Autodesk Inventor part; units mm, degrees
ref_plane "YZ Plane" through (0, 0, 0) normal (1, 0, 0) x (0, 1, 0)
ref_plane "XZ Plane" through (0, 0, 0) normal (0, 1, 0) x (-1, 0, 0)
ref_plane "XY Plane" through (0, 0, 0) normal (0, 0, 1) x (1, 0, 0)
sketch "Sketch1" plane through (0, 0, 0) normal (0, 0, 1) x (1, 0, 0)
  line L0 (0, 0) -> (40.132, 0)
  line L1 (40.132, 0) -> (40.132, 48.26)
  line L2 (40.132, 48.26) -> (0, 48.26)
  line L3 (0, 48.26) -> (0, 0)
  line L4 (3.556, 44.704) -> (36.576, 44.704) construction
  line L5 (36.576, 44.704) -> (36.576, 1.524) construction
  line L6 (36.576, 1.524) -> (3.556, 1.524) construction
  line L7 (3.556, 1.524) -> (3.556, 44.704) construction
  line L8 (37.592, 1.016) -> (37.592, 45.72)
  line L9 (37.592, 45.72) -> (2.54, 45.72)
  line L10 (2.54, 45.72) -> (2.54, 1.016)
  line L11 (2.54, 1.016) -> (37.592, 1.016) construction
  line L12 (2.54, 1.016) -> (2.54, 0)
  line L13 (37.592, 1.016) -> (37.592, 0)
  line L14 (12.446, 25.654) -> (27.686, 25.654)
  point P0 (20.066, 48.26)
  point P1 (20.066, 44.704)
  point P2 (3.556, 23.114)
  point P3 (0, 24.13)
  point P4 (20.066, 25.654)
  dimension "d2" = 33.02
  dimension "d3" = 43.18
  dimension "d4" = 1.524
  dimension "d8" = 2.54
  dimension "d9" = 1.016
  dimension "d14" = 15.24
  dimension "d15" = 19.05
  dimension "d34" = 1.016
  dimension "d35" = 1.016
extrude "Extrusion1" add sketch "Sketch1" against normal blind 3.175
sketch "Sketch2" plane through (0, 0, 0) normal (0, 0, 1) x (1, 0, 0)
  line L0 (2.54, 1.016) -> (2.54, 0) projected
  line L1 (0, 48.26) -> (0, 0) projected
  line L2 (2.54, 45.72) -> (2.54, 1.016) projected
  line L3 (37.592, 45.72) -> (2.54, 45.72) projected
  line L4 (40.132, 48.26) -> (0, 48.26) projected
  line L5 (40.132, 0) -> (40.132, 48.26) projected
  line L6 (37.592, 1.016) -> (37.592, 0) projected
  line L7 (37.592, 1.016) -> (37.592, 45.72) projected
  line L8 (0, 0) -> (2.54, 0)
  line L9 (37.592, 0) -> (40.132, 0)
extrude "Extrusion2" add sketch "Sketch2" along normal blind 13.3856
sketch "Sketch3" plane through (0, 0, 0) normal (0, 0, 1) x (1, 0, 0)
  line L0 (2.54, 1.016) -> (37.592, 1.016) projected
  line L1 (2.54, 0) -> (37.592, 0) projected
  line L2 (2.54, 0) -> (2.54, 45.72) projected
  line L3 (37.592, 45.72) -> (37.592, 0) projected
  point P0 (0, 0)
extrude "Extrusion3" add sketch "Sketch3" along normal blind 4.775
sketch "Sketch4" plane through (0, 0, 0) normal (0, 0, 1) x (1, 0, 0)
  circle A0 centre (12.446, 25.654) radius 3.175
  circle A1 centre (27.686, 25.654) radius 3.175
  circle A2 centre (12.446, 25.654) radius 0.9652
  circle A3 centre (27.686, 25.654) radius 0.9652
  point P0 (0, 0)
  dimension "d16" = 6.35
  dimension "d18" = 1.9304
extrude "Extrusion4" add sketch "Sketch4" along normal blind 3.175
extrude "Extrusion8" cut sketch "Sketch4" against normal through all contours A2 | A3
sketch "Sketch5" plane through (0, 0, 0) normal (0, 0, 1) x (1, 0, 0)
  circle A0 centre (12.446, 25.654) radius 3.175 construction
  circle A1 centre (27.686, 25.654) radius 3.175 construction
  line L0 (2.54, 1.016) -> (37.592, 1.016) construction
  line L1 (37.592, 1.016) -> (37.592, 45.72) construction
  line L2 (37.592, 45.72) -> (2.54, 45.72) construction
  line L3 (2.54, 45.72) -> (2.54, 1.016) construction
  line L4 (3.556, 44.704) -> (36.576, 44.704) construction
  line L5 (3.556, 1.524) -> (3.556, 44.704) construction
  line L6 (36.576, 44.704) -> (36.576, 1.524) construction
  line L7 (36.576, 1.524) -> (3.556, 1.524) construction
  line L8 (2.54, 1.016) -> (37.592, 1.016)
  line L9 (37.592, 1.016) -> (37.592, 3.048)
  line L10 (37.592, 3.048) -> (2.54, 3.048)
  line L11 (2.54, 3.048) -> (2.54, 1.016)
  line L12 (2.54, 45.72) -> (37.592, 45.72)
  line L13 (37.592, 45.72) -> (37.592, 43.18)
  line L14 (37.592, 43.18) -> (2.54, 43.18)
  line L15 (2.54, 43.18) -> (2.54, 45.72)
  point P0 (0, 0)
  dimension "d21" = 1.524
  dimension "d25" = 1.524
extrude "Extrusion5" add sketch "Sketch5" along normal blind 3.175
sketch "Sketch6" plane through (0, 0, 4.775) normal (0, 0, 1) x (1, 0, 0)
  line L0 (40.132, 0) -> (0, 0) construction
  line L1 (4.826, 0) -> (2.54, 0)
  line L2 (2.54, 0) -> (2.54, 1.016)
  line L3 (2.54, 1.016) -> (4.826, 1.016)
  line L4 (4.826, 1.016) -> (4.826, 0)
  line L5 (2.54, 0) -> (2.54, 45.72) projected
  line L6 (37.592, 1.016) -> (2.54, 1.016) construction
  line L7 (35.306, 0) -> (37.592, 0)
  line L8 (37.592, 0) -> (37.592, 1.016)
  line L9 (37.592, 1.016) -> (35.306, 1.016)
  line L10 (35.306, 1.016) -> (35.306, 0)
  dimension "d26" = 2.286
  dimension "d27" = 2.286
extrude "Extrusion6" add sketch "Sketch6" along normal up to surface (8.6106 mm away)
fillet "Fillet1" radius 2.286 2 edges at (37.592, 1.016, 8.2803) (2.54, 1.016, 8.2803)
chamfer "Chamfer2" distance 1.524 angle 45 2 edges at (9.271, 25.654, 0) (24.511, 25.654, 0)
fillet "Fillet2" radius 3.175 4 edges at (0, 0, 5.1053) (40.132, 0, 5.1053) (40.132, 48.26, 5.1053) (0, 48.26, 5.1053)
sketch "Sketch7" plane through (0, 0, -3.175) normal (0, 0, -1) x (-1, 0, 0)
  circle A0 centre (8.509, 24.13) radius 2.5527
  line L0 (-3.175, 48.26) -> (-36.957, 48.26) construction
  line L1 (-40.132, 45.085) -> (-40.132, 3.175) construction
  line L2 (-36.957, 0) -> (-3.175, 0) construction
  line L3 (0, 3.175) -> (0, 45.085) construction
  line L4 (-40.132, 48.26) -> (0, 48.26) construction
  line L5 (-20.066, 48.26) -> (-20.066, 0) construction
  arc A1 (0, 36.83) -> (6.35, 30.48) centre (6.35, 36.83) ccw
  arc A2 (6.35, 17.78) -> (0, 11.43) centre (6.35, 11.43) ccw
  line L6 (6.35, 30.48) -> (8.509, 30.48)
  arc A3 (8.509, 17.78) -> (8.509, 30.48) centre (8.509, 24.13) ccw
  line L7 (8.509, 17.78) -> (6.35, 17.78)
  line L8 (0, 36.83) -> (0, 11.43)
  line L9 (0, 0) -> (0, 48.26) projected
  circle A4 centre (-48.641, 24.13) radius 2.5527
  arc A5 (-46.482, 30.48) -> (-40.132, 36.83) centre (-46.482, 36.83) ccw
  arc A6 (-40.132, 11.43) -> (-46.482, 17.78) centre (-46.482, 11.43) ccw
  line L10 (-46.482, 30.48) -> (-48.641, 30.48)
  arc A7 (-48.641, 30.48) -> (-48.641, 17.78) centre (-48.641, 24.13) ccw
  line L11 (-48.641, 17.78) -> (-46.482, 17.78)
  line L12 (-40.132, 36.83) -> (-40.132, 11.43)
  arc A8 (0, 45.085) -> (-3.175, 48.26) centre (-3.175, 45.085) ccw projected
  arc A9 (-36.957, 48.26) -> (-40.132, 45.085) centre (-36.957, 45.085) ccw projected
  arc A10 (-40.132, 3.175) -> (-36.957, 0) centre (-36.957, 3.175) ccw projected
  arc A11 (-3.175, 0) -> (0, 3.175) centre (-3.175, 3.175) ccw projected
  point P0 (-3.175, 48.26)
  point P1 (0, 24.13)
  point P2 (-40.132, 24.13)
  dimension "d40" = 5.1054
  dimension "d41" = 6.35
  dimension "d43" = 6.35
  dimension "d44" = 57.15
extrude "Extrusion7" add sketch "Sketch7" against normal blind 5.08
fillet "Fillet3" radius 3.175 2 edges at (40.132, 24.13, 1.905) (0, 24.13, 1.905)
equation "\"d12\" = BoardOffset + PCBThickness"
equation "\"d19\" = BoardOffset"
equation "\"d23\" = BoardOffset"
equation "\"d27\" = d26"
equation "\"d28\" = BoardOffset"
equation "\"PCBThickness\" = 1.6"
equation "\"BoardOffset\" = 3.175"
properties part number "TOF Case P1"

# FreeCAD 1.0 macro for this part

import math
import FreeCAD as App
import Part
import Sketcher
from FreeCAD import Vector
Q = App.Units.Quantity


def edges_at(feature, points):
    """Names of the edges that pass closest to the given points."""
    edges = feature.Shape.Edges
    near = lambda p: min(range(len(edges)), key=lambda i: edges[i].distToShape(Part.Vertex(*p))[0])
    return sorted({f"Edge{near(p) + 1}" for p in points})


def add_polygon(sketch, points):
    """Adds a closed chain of lines whose ends are joined by coincident constraints."""
    first, n = sketch.GeometryCount, len(points)
    for a, b in zip(points, points[1:] + points[:1]):
        sketch.addGeometry(Part.LineSegment(App.Vector(*a, 0), App.Vector(*b, 0)), False)
    for i in range(n):
        sketch.addConstraint(Sketcher.Constraint("Coincident", first + i, 2, first + (i + 1) % n, 1))

doc = App.newDocument("Part")
body = doc.addObject("PartDesign::Body", "Body")

# Sketch on XY plane
sketch1 = body.newObject("Sketcher::SketchObject", "Sketch")
sketch1.AttachmentSupport = (doc.getObject("XY_Plane"), [""])
sketch1.MapMode = "FlatFace"
add_polygon(sketch1, [(0, 48), (0, 0), (40, 0), (40, 48)])  # lines 0-3
sketch1.addConstraint(Sketcher.Constraint("Vertical", 0))
sketch1.addConstraint(Sketcher.Constraint("Horizontal", 1))
sketch1.addConstraint(Sketcher.Constraint("Vertical", 2))
sketch1.addConstraint(Sketcher.Constraint("Horizontal", 3))
sketch1.addConstraint(Sketcher.Constraint("Coincident", 0, 2, -1, 1))
sketch1.addConstraint(Sketcher.Constraint("DistanceY", 0, 2, 0, 1, Q("1.9 in")))
sketch1.addConstraint(Sketcher.Constraint("DistanceX", 1, 1, 1, 2, Q("1.58 in")))
pad1 = body.newObject("PartDesign::Pad", "Pad")
pad1.Profile = sketch1
pad1.Length = Q("0.125 in")
pad1.Reversed = True

# Sketch on XY plane
sketch2 = body.newObject("Sketcher::SketchObject", "Sketch001")
sketch2.AttachmentSupport = (doc.getObject("XY_Plane"), [""])
sketch2.MapMode = "FlatFace"
add_polygon(sketch2, [(2.5, 0), (2.5, 45.7), (37.6, 45.7), (37.6, 0), (40.1, 0), (40.1, 48.3), (0, 48.3), (0, 0)])  # lines 0-7
sketch2.addConstraint(Sketcher.Constraint("Vertical", 0))
sketch2.addConstraint(Sketcher.Constraint("Horizontal", 1))
sketch2.addConstraint(Sketcher.Constraint("Vertical", 2))
sketch2.addConstraint(Sketcher.Constraint("Horizontal", 3))
sketch2.addConstraint(Sketcher.Constraint("Vertical", 4))
sketch2.addConstraint(Sketcher.Constraint("Horizontal", 5))
sketch2.addConstraint(Sketcher.Constraint("Vertical", 6))
sketch2.addConstraint(Sketcher.Constraint("Horizontal", 7))
sketch2.addConstraint(Sketcher.Constraint("Coincident", 6, 2, -1, 1))
sketch2.addConstraint(Sketcher.Constraint("PointOnObject", 2, 2, -1))
sketch2.addConstraint(Sketcher.Constraint("Equal", 3, 7))
sketch2.addConstraint(Sketcher.Constraint("DistanceX", 3, 1, 3, 2, Q("0.1 in")))
sketch2.addConstraint(Sketcher.Constraint("DistanceY", 0, 1, 0, 2, Q("1.8 in")))
sketch2.addConstraint(Sketcher.Constraint("DistanceY", 4, 1, 4, 2, Q("1.9 in")))
sketch2.addConstraint(Sketcher.Constraint("DistanceX", 1, 1, 1, 2, Q("1.38 in")))
pad2 = body.newObject("PartDesign::Pad", "Pad001")
pad2.Profile = sketch2
pad2.Length = Q("0.5269921 in")

# Sketch on XY plane
sketch3 = body.newObject("Sketcher::SketchObject", "Sketch002")
sketch3.AttachmentSupport = (doc.getObject("XY_Plane"), [""])
sketch3.MapMode = "FlatFace"
add_polygon(sketch3, [(37.6, 1), (2.5, 1), (2.5, 0), (37.6, 0)])  # lines 0-3
sketch3.addConstraint(Sketcher.Constraint("Horizontal", 0))
sketch3.addConstraint(Sketcher.Constraint("Vertical", 1))
sketch3.addConstraint(Sketcher.Constraint("Horizontal", 2))
sketch3.addConstraint(Sketcher.Constraint("Vertical", 3))
sketch3.addConstraint(Sketcher.Constraint("PointOnObject", 1, 2, -1))
sketch3.addConstraint(Sketcher.Constraint("DistanceX", 0, 2, 0, 1, Q("1.38 in")))
sketch3.addConstraint(Sketcher.Constraint("DistanceY", 1, 2, 1, 1, Q("0.04 in")))
sketch3.addConstraint(Sketcher.Constraint("DistanceX", -1, 1, 0, 2, Q("0.1 in")))
pad3 = body.newObject("PartDesign::Pad", "Pad002")
pad3.Profile = sketch3
pad3.Length = Q("0.1879921 in")

# Sketch on XY plane
sketch4 = body.newObject("Sketcher::SketchObject", "Sketch003")
sketch4.AttachmentSupport = (doc.getObject("XY_Plane"), [""])
sketch4.MapMode = "FlatFace"
sketch4.addGeometry(Part.Circle(Vector(12.4, 25.7, 0), Vector(0, 0, 1), 3.2), False)
sketch4.addGeometry(Part.Circle(Vector(12.4, 25.7, 0), Vector(0, 0, 1), 1), False)
sketch4.addGeometry(Part.Circle(Vector(27.7, 25.7, 0), Vector(0, 0, 1), 3.2), False)
sketch4.addGeometry(Part.Circle(Vector(27.7, 25.7, 0), Vector(0, 0, 1), 1), False)
sketch4.addConstraint(Sketcher.Constraint("Coincident", 1, 3, 0, 3))
sketch4.addConstraint(Sketcher.Constraint("Coincident", 3, 3, 2, 3))
sketch4.addConstraint(Sketcher.Constraint("Equal", 0, 2))
sketch4.addConstraint(Sketcher.Constraint("Equal", 1, 3))
sketch4.addConstraint(Sketcher.Constraint("Horizontal", 1, 3, 2, 3))
sketch4.addConstraint(Sketcher.Constraint("Diameter", 0, Q("0.25 in")))
sketch4.addConstraint(Sketcher.Constraint("Diameter", 1, Q("0.076 in")))
sketch4.addConstraint(Sketcher.Constraint("DistanceX", 0, 3, 2, 3, Q("0.6 in")))
sketch4.addConstraint(Sketcher.Constraint("DistanceX", -1, 1, 0, 3, Q("0.49 in")))
sketch4.addConstraint(Sketcher.Constraint("DistanceY", -1, 1, 0, 3, Q("1.01 in")))
pad4 = body.newObject("PartDesign::Pad", "Pad003")
pad4.Profile = sketch4
pad4.Length = Q("0.125 in")

# Sketch on XY plane
sketch5 = body.newObject("Sketcher::SketchObject", "Sketch004")
sketch5.AttachmentSupport = (doc.getObject("XY_Plane"), [""])
sketch5.MapMode = "FlatFace"
sketch5.addGeometry(Part.Circle(Vector(12.4, 25.7, 0), Vector(0, 0, 1), 1), False)
sketch5.addGeometry(Part.Circle(Vector(27.7, 25.7, 0), Vector(0, 0, 1), 1), False)
sketch5.addConstraint(Sketcher.Constraint("Equal", 0, 1))
sketch5.addConstraint(Sketcher.Constraint("Horizontal", 0, 3, 1, 3))
sketch5.addConstraint(Sketcher.Constraint("Diameter", 0, Q("0.076 in")))
sketch5.addConstraint(Sketcher.Constraint("DistanceX", 0, 3, 1, 3, Q("0.6 in")))
sketch5.addConstraint(Sketcher.Constraint("DistanceX", -1, 1, 0, 3, Q("0.49 in")))
sketch5.addConstraint(Sketcher.Constraint("DistanceY", -1, 1, 0, 3, Q("1.01 in")))
pocket1 = body.newObject("PartDesign::Pocket", "Pocket")
pocket1.Profile = sketch5
pocket1.Type = "ThroughAll"

# Sketch on XY plane
sketch6 = body.newObject("Sketcher::SketchObject", "Sketch005")
sketch6.AttachmentSupport = (doc.getObject("XY_Plane"), [""])
sketch6.MapMode = "FlatFace"
add_polygon(sketch6, [(2.5, 3), (2.5, 1), (37.6, 1), (37.6, 3)])  # lines 0-3
add_polygon(sketch6, [(37.6, 45.7), (2.5, 45.7), (2.5, 43.2), (37.6, 43.2)])  # lines 4-7
sketch6.addConstraint(Sketcher.Constraint("Vertical", 0))
sketch6.addConstraint(Sketcher.Constraint("Horizontal", 1))
sketch6.addConstraint(Sketcher.Constraint("Vertical", 2))
sketch6.addConstraint(Sketcher.Constraint("Horizontal", 3))
sketch6.addConstraint(Sketcher.Constraint("Horizontal", 4))
sketch6.addConstraint(Sketcher.Constraint("Vertical", 5))
sketch6.addConstraint(Sketcher.Constraint("Horizontal", 6))
sketch6.addConstraint(Sketcher.Constraint("Vertical", 7))
sketch6.addConstraint(Sketcher.Constraint("Vertical", 3, 2, 4, 2))
sketch6.addConstraint(Sketcher.Constraint("Vertical", 2, 2, 6, 2))
sketch6.addConstraint(Sketcher.Constraint("DistanceY", 5, 2, 5, 1, Q("0.1 in")))
sketch6.addConstraint(Sketcher.Constraint("DistanceX", 1, 1, 1, 2, Q("1.38 in")))
sketch6.addConstraint(Sketcher.Constraint("DistanceY", 0, 2, 0, 1, Q("0.08 in")))
sketch6.addConstraint(Sketcher.Constraint("DistanceX", -1, 1, 0, 2, Q("0.1 in")))
sketch6.addConstraint(Sketcher.Constraint("DistanceY", -1, 1, 4, 2, Q("1.8 in")))
sketch6.addConstraint(Sketcher.Constraint("DistanceY", -1, 1, 0, 2, Q("0.04 in")))
pad5 = body.newObject("PartDesign::Pad", "Pad004")
pad5.Profile = sketch6
pad5.Length = Q("0.125 in")

# Sketch on XY plane
sketch7 = body.newObject("Sketcher::SketchObject", "Sketch006")
sketch7.AttachmentSupport = (doc.getObject("XY_Plane"), [""])
sketch7.MapMode = "FlatFace"
sketch7.AttachmentOffset = App.Placement(Vector(0, 0, 0.1879921 * 25.4), App.Rotation())
add_polygon(sketch7, [(2.5, 0), (4.8, 0), (4.8, 1), (2.5, 1)])  # lines 0-3
add_polygon(sketch7, [(35.3, 1), (35.3, 0), (37.6, 0), (37.6, 1)])  # lines 4-7
sketch7.addConstraint(Sketcher.Constraint("Horizontal", 0))
sketch7.addConstraint(Sketcher.Constraint("Vertical", 1))
sketch7.addConstraint(Sketcher.Constraint("Horizontal", 2))
sketch7.addConstraint(Sketcher.Constraint("Vertical", 3))
sketch7.addConstraint(Sketcher.Constraint("Vertical", 4))
sketch7.addConstraint(Sketcher.Constraint("Horizontal", 5))
sketch7.addConstraint(Sketcher.Constraint("Vertical", 6))
sketch7.addConstraint(Sketcher.Constraint("Horizontal", 7))
sketch7.addConstraint(Sketcher.Constraint("PointOnObject", 0, 2, -1))
sketch7.addConstraint(Sketcher.Constraint("PointOnObject", 4, 2, -1))
sketch7.addConstraint(Sketcher.Constraint("Horizontal", 2, 2, 6, 2))
sketch7.addConstraint(Sketcher.Constraint("Equal", 2, 5))
sketch7.addConstraint(Sketcher.Constraint("DistanceX", 0, 1, 0, 2, Q("0.09 in")))
sketch7.addConstraint(Sketcher.Constraint("DistanceY", 1, 1, 1, 2, Q("0.04 in")))
sketch7.addConstraint(Sketcher.Constraint("DistanceX", -1, 1, 2, 2, Q("0.1 in")))
sketch7.addConstraint(Sketcher.Constraint("DistanceX", 0, 2, 4, 2, Q("1.2 in")))
pad6 = body.newObject("PartDesign::Pad", "Pad005")
pad6.Profile = sketch7
pad6.Length = Q("0.339 in")
doc.recompute()

fillet = body.newObject("PartDesign::Fillet", "Fillet")
fillet.Base = (pad6, edges_at(pad6, [(37.592, 1.016, 8.28), (2.54, 1.016, 8.28)]))
fillet.Radius = Q("0.09 in")
doc.recompute()

chamfer = body.newObject("PartDesign::Chamfer", "Chamfer")
chamfer.Base = (fillet, edges_at(fillet, [(9.271, 25.654, 0), (24.511, 25.654, 0)]))
chamfer.Size = Q("0.06 in")
doc.recompute()

fillet2 = body.newObject("PartDesign::Fillet", "Fillet001")
fillet2.Base = (chamfer, edges_at(chamfer, [
    (0, 0, 5.105),
    (40.132, 0, 5.105),
    (40.132, 48.26, 5.105),
    (0, 48.26, 5.105),
]))
fillet2.Radius = Q("0.125 in")

# Sketch on XY plane
sketch8 = body.newObject("Sketcher::SketchObject", "Sketch007")
sketch8.AttachmentSupport = (doc.getObject("XY_Plane"), [""])
sketch8.MapMode = "FlatFace"
sketch8.AttachmentOffset = App.Placement(Vector(0, 0, -0.125 * 25.4), App.Rotation())
sketch8.addGeometry(Part.ArcOfCircle(Part.Circle(Vector(-6.3, 36.8, 0), Vector(0, 0, 1), 6.3), math.radians(-90), math.radians(0)), False)
sketch8.addGeometry(Part.LineSegment(Vector(0, 36.8, 0), Vector(0, 11.4, 0)), False)
sketch8.addGeometry(Part.ArcOfCircle(Part.Circle(Vector(-6.3, 11.4, 0), Vector(0, 0, 1), 6.4), math.radians(0), math.radians(90)), False)
sketch8.addGeometry(Part.LineSegment(Vector(-6.3, 17.8, 0), Vector(-8.5, 17.8, 0)), False)
sketch8.addGeometry(Part.ArcOfCircle(Part.Circle(Vector(-8.5, 24.1, 0), Vector(0, 0, 1), 6.3), math.radians(90), math.radians(270)), False)
sketch8.addGeometry(Part.LineSegment(Vector(-8.5, 30.5, 0), Vector(-6.3, 30.5, 0)), False)
sketch8.addGeometry(Part.Circle(Vector(-8.5, 24.1, 0), Vector(0, 0, 1), 2.6), False)
sketch8.addGeometry(Part.ArcOfCircle(Part.Circle(Vector(46.5, 36.8, 0), Vector(0, 0, 1), 6.3), math.radians(180), math.radians(270)), False)
sketch8.addGeometry(Part.LineSegment(Vector(46.5, 30.5, 0), Vector(48.6, 30.5, 0)), False)
sketch8.addGeometry(Part.ArcOfCircle(Part.Circle(Vector(48.6, 24.1, 0), Vector(0, 0, 1), 6.4), math.radians(-90), math.radians(90)), False)
sketch8.addGeometry(Part.LineSegment(Vector(48.6, 17.8, 0), Vector(46.5, 17.8, 0)), False)
sketch8.addGeometry(Part.ArcOfCircle(Part.Circle(Vector(46.5, 11.4, 0), Vector(0, 0, 1), 6.4), math.radians(90), math.radians(180)), False)
sketch8.addGeometry(Part.LineSegment(Vector(40.1, 11.4, 0), Vector(40.1, 36.8, 0)), False)
sketch8.addGeometry(Part.Circle(Vector(48.6, 24.1, 0), Vector(0, 0, 1), 2.6), False)
sketch8.addConstraint(Sketcher.Constraint("Tangent", 0, 2, 1, 1))
sketch8.addConstraint(Sketcher.Constraint("Tangent", 1, 2, 2, 1))
sketch8.addConstraint(Sketcher.Constraint("Tangent", 2, 2, 3, 1))
sketch8.addConstraint(Sketcher.Constraint("Tangent", 3, 2, 4, 2))
sketch8.addConstraint(Sketcher.Constraint("Tangent", 4, 1, 5, 1))
sketch8.addConstraint(Sketcher.Constraint("Tangent", 5, 2, 0, 1))
sketch8.addConstraint(Sketcher.Constraint("Tangent", 7, 2, 8, 1))
sketch8.addConstraint(Sketcher.Constraint("Tangent", 8, 2, 9, 2))
sketch8.addConstraint(Sketcher.Constraint("Tangent", 9, 1, 10, 1))
sketch8.addConstraint(Sketcher.Constraint("Tangent", 10, 2, 11, 1))
sketch8.addConstraint(Sketcher.Constraint("Tangent", 11, 2, 12, 1))
sketch8.addConstraint(Sketcher.Constraint("Tangent", 12, 2, 7, 1))
sketch8.addConstraint(Sketcher.Constraint("Vertical", 1))
sketch8.addConstraint(Sketcher.Constraint("Horizontal", 3))
sketch8.addConstraint(Sketcher.Constraint("Horizontal", 5))
sketch8.addConstraint(Sketcher.Constraint("Horizontal", 8))
sketch8.addConstraint(Sketcher.Constraint("Horizontal", 10))
sketch8.addConstraint(Sketcher.Constraint("Vertical", 12))
sketch8.addConstraint(Sketcher.Constraint("Coincident", 6, 3, 4, 3))
sketch8.addConstraint(Sketcher.Constraint("Coincident", 13, 3, 9, 3))
sketch8.addConstraint(Sketcher.Constraint("Equal", 0, 2))
sketch8.addConstraint(Sketcher.Constraint("Equal", 2, 4))
sketch8.addConstraint(Sketcher.Constraint("Equal", 4, 7))
sketch8.addConstraint(Sketcher.Constraint("Equal", 7, 9))
sketch8.addConstraint(Sketcher.Constraint("Equal", 9, 11))
sketch8.addConstraint(Sketcher.Constraint("Equal", 6, 13))
sketch8.addConstraint(Sketcher.Constraint("PointOnObject", 0, 2, -2))
sketch8.addConstraint(Sketcher.Constraint("Horizontal", 0, 3, 7, 3))
sketch8.addConstraint(Sketcher.Constraint("Equal", 5, 8))
sketch8.addConstraint(Sketcher.Constraint("Radius", 0, Q("0.25 in")))
sketch8.addConstraint(Sketcher.Constraint("Diameter", 6, Q("0.201 in")))
sketch8.addConstraint(Sketcher.Constraint("DistanceX", 4, 3, 9, 3, Q("2.25 in")))
sketch8.addConstraint(Sketcher.Constraint("DistanceY", -1, 1, 2, 2, Q("0.7 in")))
sketch8.addConstraint(Sketcher.Constraint("DistanceX", 3, 2, 3, 1, Q("0.085 in")))
pad7 = body.newObject("PartDesign::Pad", "Pad006")
pad7.Profile = sketch8
pad7.Length = Q("0.2 in")
doc.recompute()

fillet3 = body.newObject("PartDesign::Fillet", "Fillet002")
fillet3.Base = (pad7, edges_at(pad7, [(40.132, 24.13, 1.905), (0, 24.13, 1.905)]))
fillet3.Radius = Q("0.125 in")

doc.recompute()
